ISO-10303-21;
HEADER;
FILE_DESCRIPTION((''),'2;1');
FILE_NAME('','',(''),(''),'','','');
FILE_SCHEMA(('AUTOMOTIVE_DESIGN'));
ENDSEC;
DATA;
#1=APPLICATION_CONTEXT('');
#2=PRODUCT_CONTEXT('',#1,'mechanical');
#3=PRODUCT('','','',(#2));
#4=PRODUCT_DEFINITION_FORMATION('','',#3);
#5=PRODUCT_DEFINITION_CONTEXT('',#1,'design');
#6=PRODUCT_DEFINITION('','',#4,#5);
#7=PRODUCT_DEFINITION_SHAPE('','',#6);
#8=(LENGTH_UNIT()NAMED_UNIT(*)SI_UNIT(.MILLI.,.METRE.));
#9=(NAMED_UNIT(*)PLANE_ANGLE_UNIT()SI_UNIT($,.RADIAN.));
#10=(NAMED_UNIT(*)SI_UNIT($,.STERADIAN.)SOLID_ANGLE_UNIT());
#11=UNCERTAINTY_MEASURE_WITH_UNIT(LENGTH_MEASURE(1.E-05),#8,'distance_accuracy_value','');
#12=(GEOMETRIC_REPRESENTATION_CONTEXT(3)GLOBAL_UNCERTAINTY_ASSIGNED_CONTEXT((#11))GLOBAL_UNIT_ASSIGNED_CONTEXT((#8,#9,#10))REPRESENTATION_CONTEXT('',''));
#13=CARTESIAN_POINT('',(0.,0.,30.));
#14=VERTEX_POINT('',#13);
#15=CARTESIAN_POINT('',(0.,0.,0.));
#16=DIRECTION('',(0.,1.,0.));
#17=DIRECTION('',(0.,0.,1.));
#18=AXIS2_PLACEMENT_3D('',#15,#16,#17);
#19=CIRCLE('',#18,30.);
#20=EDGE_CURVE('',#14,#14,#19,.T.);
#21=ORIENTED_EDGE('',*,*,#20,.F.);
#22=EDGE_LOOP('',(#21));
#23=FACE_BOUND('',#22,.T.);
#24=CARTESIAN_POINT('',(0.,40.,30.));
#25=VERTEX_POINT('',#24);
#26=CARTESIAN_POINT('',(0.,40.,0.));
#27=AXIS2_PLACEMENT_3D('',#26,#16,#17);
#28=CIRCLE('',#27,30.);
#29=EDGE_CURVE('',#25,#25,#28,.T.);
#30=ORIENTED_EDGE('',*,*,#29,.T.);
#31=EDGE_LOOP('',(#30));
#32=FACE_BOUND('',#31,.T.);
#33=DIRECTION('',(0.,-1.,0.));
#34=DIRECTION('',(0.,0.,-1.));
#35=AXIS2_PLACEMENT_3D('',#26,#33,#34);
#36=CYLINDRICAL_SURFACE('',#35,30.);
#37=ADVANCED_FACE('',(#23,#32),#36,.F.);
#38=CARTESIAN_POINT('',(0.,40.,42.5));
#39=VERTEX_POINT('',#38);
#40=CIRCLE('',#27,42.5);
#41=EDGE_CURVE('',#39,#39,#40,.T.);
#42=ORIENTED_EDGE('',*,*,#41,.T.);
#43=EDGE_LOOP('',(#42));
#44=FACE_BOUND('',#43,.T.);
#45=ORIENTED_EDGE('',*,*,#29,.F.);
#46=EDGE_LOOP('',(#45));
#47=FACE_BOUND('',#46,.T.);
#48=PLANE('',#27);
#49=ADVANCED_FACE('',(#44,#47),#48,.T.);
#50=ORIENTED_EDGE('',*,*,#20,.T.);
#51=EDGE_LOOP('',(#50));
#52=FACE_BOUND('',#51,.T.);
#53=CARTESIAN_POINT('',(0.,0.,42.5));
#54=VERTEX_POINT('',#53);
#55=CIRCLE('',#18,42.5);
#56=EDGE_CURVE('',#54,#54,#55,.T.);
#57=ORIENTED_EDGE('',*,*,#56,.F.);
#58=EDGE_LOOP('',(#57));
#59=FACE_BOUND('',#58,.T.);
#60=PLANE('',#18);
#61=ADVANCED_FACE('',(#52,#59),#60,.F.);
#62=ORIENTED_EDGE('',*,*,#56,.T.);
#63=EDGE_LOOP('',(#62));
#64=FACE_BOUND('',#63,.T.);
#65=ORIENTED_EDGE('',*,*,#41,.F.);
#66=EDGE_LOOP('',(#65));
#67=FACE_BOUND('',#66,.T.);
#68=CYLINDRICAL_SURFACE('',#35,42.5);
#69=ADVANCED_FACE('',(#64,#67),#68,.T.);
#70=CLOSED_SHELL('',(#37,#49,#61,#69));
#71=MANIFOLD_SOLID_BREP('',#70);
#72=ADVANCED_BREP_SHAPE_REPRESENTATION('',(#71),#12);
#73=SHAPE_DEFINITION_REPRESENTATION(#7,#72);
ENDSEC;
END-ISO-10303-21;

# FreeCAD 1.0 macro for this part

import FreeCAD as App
import Part
import Sketcher
Q = App.Units.Quantity

doc = App.newDocument("Part")
body = doc.addObject("PartDesign::Body", "Body")

sketch1 = doc.addObject("Sketcher::SketchObject", "Sketch")
body.addObject(sketch1)
sketch1.AttachmentSupport = (doc.XZ_Plane, [""])
sketch1.MapMode = "FlatFace"
sketch1.addGeometry(Part.Circle(App.Vector(0, 0, 0), App.Vector(0, 0, 1), 42.5), False)
sketch1.addGeometry(Part.Circle(App.Vector(0, 0, 0), App.Vector(0, 0, 1), 30), False)
sketch1.addConstraint(Sketcher.Constraint("Coincident", 0, 3, -1, 1))
sketch1.addConstraint(Sketcher.Constraint("Coincident", 1, 3, -1, 1))
sketch1.addConstraint(Sketcher.Constraint("Diameter", 0, Q("85 mm")))
sketch1.addConstraint(Sketcher.Constraint("Diameter", 1, Q("60 mm")))
pad1 = doc.addObject("PartDesign::Pad", "Pad")
body.addObject(pad1)
pad1.Profile = sketch1
pad1.Length = 40
pad1.Reversed = True

doc.recompute()
